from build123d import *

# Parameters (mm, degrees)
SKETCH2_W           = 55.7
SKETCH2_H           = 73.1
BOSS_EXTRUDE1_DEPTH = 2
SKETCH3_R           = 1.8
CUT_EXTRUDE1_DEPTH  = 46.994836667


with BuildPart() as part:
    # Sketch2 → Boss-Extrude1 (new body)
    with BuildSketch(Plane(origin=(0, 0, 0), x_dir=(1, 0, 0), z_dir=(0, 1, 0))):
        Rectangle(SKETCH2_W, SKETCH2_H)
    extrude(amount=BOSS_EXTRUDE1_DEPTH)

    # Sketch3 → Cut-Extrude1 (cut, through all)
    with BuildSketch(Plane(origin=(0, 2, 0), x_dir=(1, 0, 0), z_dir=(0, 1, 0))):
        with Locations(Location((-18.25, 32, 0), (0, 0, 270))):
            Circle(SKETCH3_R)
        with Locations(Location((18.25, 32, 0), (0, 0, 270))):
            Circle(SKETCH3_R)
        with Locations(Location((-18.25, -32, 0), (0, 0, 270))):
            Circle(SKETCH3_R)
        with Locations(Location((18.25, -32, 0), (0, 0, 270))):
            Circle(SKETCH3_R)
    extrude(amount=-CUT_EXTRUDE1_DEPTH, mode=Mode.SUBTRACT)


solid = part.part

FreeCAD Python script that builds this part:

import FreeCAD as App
import Part
import Sketcher
Q = App.Units.Quantity


def add_polygon(sketch, points):
    """Adds a closed chain of lines whose ends are joined by coincident constraints."""
    first, n = sketch.GeometryCount, len(points)
    for a, b in zip(points, points[1:] + points[:1]):
        sketch.addGeometry(Part.LineSegment(App.Vector(*a, 0), App.Vector(*b, 0)), False)
    for i in range(n):
        sketch.addConstraint(Sketcher.Constraint("Coincident", first + i, 2, first + (i + 1) % n, 1))

doc = App.newDocument("Part")
body = doc.addObject("PartDesign::Body", "Body")

sketch1 = body.newObject("Sketcher::SketchObject", "Sketch")
sketch1.AttachmentSupport = (doc.getObject("XZ_Plane"), [""])
sketch1.MapMode = "FlatFace"
add_polygon(sketch1, [(-27.85, -36.55), (-27.85, 36.55), (27.85, 36.55), (27.85, -36.55)])
sketch1.addConstraint([
    Sketcher.Constraint("Vertical", 0),
    Sketcher.Constraint("Horizontal", 1),
    Sketcher.Constraint("Vertical", 2),
    Sketcher.Constraint("Horizontal", 3),
    Sketcher.Constraint("Symmetric", 0, 2, 2, 2, -1, 1),
    Sketcher.Constraint("DistanceX", 1, 1, 1, 2, Q("55.7 mm")),
    Sketcher.Constraint("DistanceY", 0, 1, 0, 2, Q("73.1 mm")),
])
pad1 = body.newObject("PartDesign::Pad", "Pad")
pad1.Profile = sketch1
pad1.Length = 2
pad1.Reversed = True

sketch2 = body.newObject("Sketcher::SketchObject", "Sketch001")
sketch2.AttachmentSupport = (doc.getObject("XZ_Plane"), [""])
sketch2.MapMode = "FlatFace"
sketch2.AttachmentOffset = App.Placement(App.Vector(0, 0, -2), App.Rotation())
sketch2.addGeometry([
    Part.Circle(App.Vector(-18.25, -32, 0), App.Vector(0, 0, 1), 1.8),
    Part.Circle(App.Vector(18.25, -32, 0), App.Vector(0, 0, 1), 1.8),
    Part.Circle(App.Vector(-18.25, 32, 0), App.Vector(0, 0, 1), 1.8),
    Part.Circle(App.Vector(18.25, 32, 0), App.Vector(0, 0, 1), 1.8),
], False)
sketch2.addConstraint([
    Sketcher.Constraint("Equal", 0, 1),
    Sketcher.Constraint("Equal", 1, 2),
    Sketcher.Constraint("Equal", 2, 3),
    Sketcher.Constraint("Symmetric", 1, 3, 2, 3, -1, 1),
    Sketcher.Constraint("Symmetric", 0, 3, 3, 3, -1, 1),
    Sketcher.Constraint("Symmetric", 0, 3, 1, 3, -2),
    Sketcher.Constraint("Diameter", 0, Q("3.6 mm")),
    Sketcher.Constraint("DistanceY", 0, 3, -1, 1, Q("32 mm")),
    Sketcher.Constraint("DistanceX", 0, 3, 1, 3, Q("36.5 mm")),
])
pocket1 = body.newObject("PartDesign::Pocket", "Pocket")
pocket1.Profile = sketch2
pocket1.Type = "ThroughAll"
pocket1.Reversed = True

doc.recompute()
